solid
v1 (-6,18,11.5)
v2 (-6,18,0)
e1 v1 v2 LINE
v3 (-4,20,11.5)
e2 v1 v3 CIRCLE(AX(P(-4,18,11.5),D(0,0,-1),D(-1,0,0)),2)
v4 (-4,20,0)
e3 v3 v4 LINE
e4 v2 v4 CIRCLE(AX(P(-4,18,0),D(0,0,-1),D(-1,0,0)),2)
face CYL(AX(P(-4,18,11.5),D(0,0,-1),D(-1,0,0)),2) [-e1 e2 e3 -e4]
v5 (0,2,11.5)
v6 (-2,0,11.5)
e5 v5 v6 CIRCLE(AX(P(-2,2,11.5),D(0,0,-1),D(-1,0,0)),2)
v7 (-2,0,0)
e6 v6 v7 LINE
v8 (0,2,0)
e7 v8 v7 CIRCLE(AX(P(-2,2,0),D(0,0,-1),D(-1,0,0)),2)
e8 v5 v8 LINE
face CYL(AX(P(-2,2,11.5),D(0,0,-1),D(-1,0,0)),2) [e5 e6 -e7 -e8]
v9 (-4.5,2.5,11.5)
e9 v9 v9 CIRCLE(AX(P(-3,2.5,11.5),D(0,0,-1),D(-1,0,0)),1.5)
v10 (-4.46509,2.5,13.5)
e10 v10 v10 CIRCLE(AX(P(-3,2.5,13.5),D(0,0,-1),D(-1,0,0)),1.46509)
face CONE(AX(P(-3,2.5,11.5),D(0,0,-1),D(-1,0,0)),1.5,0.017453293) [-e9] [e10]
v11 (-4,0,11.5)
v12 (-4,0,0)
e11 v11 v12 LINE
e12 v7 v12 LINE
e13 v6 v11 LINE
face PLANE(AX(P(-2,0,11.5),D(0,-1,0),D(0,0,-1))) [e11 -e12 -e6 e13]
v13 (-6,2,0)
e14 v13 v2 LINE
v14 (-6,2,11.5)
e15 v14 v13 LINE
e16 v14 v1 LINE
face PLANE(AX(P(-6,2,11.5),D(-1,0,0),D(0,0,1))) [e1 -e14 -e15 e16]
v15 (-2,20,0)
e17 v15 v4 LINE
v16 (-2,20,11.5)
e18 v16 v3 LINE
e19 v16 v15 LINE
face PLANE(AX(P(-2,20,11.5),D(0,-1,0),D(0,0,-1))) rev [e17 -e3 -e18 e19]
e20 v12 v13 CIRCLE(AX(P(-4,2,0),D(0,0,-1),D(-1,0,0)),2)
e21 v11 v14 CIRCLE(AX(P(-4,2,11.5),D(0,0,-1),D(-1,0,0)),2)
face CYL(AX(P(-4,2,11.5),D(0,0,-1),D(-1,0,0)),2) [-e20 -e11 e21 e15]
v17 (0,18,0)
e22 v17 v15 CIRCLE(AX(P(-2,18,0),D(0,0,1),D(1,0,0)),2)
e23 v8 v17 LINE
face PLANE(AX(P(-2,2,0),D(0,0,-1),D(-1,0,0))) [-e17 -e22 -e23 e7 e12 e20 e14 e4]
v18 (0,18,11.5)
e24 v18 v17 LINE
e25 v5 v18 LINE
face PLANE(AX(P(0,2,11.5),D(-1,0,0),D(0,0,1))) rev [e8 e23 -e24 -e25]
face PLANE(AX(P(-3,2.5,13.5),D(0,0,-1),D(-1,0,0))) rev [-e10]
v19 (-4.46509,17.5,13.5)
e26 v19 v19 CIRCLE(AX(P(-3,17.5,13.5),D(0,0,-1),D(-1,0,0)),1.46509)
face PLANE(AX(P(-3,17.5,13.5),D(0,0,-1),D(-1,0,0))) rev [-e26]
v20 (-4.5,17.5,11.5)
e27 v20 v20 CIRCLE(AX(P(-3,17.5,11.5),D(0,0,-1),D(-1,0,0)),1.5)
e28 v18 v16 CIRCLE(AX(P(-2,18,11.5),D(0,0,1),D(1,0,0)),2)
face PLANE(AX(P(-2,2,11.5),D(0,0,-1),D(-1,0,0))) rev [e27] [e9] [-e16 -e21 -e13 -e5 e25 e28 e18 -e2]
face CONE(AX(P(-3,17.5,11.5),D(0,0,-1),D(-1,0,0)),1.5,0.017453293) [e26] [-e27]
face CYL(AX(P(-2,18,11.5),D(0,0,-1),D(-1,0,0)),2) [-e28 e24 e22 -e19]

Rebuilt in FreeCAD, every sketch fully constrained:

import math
import FreeCAD as App
import Part
import Sketcher

V = App.Vector


def faces_at(feature, points):
    """Names of the faces that lie closest to the given points."""
    faces = feature.Shape.Faces
    near = lambda p: min(range(len(faces)), key=lambda i: faces[i].distToShape(Part.Vertex(*p))[0])
    return sorted({f"Face{near(p) + 1}" for p in points})

doc = App.newDocument("Part")
params = doc.addObject("Spreadsheet::Sheet", "Params")
for row, (alias, value) in enumerate([
    ("sketch1_radius", "2 mm"),
    ("sketch1_width", "2 mm"),
    ("sketch1_height", "16 mm"),
    ("pad1_length", "11.5 mm"),
    ("sketch2_diameter", "3 mm"),
    ("pad2_length", "2 mm"),
    ("draft_angle", "1 deg"),
    ("sketch3_diameter", "3 mm"),
    ("pad3_length", "2 mm"),
    ("draft2_angle", "1 deg"),
], start=1):
    params.set(f"A{row}", alias)
    params.set(f"B{row}", "=" + value)
    params.setAlias(f"B{row}", alias)

body = doc.addObject("PartDesign::Body", "Body")

# Sketch on XY plane
sketch1 = body.newObject("Sketcher::SketchObject", "Sketch")
sketch1.AttachmentSupport = (doc.getObject("XY_Plane"), [""])
sketch1.MapMode = "FlatFace"
sketch1.addGeometry([
    Part.LineSegment(V(0, 2, 0), V(0, 18, 0)),  # 0
    Part.ArcOfCircle(Part.Circle(V(-2, 18, 0), V(0, 0, 1), 2), math.radians(0), math.radians(90)),  # 1
    Part.LineSegment(V(-2, 20, 0), V(-4, 20, 0)),  # 2
    Part.ArcOfCircle(Part.Circle(V(-4, 18, 0), V(0, 0, 1), 2), math.radians(90), math.radians(180)),  # 3
    Part.LineSegment(V(-6, 18, 0), V(-6, 2, 0)),  # 4
    Part.ArcOfCircle(Part.Circle(V(-4, 2, 0), V(0, 0, 1), 2), math.radians(-180), math.radians(-90)),  # 5
    Part.LineSegment(V(-4, 0, 0), V(-2, 0, 0)),  # 6
    Part.ArcOfCircle(Part.Circle(V(-2, 2, 0), V(0, 0, 1), 2), math.radians(-90), math.radians(0)),  # 7
], False)
sketch1.addConstraint([
    Sketcher.Constraint("Tangent", 0, 2, 1, 1),
    Sketcher.Constraint("Tangent", 1, 2, 2, 1),
    Sketcher.Constraint("Tangent", 2, 2, 3, 1),
    Sketcher.Constraint("Tangent", 3, 2, 4, 1),
    Sketcher.Constraint("Tangent", 4, 2, 5, 1),
    Sketcher.Constraint("Tangent", 5, 2, 6, 1),
    Sketcher.Constraint("Tangent", 6, 2, 7, 1),
    Sketcher.Constraint("Tangent", 7, 2, 0, 1),
    Sketcher.Constraint("Vertical", 0),
    Sketcher.Constraint("Horizontal", 2),
    Sketcher.Constraint("Vertical", 4),
    Sketcher.Constraint("Horizontal", 6),
    Sketcher.Constraint("Equal", 1, 3),
    Sketcher.Constraint("Equal", 3, 5),
    Sketcher.Constraint("Equal", 5, 7),
    Sketcher.Constraint("PointOnObject", 0, 2, -2),
    Sketcher.Constraint("PointOnObject", 5, 2, -1),
    Sketcher.Constraint("Radius", 1, 2.0),
    Sketcher.Constraint("DistanceX", 2, 2, 2, 1, 2.0),
    Sketcher.Constraint("DistanceY", 0, 1, 0, 2, 16.0),
])
sketch1.setExpression("Constraints[17]", "Params.sketch1_radius")
sketch1.setExpression("Constraints[18]", "Params.sketch1_width")
sketch1.setExpression("Constraints[19]", "Params.sketch1_height")
pad1 = body.newObject("PartDesign::Pad", "Pad")
pad1.Profile = sketch1
pad1.setExpression("Length", "Params.pad1_length")
body2 = doc.addObject("PartDesign::Body", "Body001")

# Sketch on XY plane
sketch2 = body2.newObject("Sketcher::SketchObject", "Sketch001")
sketch2.AttachmentSupport = (doc.getObject("XY_Plane001"), [""])
sketch2.MapMode = "FlatFace"
sketch2.AttachmentOffset = App.Placement(V(0, 0, 11.5), App.Rotation())
sketch2.addGeometry(Part.Circle(V(-3, 2.5, 0), V(0, 0, 1), 1.5), False)
sketch2.addConstraint([
    Sketcher.Constraint("Diameter", 0, 3.0),
    Sketcher.Constraint("DistanceX", 0, 3, -1, 1, 3.0),
    Sketcher.Constraint("DistanceY", -1, 1, 0, 3, 2.5),
])
sketch2.setExpression("Constraints[0]", "Params.sketch2_diameter")
pad2 = body2.newObject("PartDesign::Pad", "Pad001")
pad2.Profile = sketch2
pad2.setExpression("Length", "Params.pad2_length")
doc.recompute()

datumplane = body2.newObject("PartDesign::Plane", "DatumPlane")
datumplane.AttachmentSupport = (doc.getObject("XY_Plane001"), [""])
datumplane.MapMode = "FlatFace"
datumplane.AttachmentOffset = App.Placement(V(0, 0, 11.5), App.Rotation())
draft = body2.newObject("PartDesign::Draft", "Draft")
draft.Base = (pad2, faces_at(pad2, [(-3, 1, 12.5)]))
draft.NeutralPlane = (datumplane, [""])
draft.setExpression("Angle", "Params.draft_angle")
draft.Reversed = False
doc.recompute()

boolean = body.newObject("PartDesign::Boolean", "Boolean")
boolean.Type = "Fuse"
boolean.addObjects([body2])
body3 = doc.addObject("PartDesign::Body", "Body002")

# Sketch on XY plane
sketch3 = body3.newObject("Sketcher::SketchObject", "Sketch002")
sketch3.AttachmentSupport = (doc.getObject("XY_Plane002"), [""])
sketch3.MapMode = "FlatFace"
sketch3.AttachmentOffset = App.Placement(V(0, 0, 11.5), App.Rotation())
sketch3.addGeometry(Part.Circle(V(-3, 17.5, 0), V(0, 0, 1), 1.5), False)
sketch3.addConstraint([
    Sketcher.Constraint("Diameter", 0, 3.0),
    Sketcher.Constraint("DistanceX", 0, 3, -1, 1, 3.0),
    Sketcher.Constraint("DistanceY", -1, 1, 0, 3, 17.5),
])
sketch3.setExpression("Constraints[0]", "Params.sketch3_diameter")
pad3 = body3.newObject("PartDesign::Pad", "Pad002")
pad3.Profile = sketch3
pad3.setExpression("Length", "Params.pad3_length")
doc.recompute()

datumplane2 = body3.newObject("PartDesign::Plane", "DatumPlane001")
datumplane2.AttachmentSupport = (doc.getObject("XY_Plane002"), [""])
datumplane2.MapMode = "FlatFace"
datumplane2.AttachmentOffset = App.Placement(V(0, 0, 11.5), App.Rotation())
draft2 = body3.newObject("PartDesign::Draft", "Draft001")
draft2.Base = (pad3, faces_at(pad3, [(-3, 16, 12.5)]))
draft2.NeutralPlane = (datumplane2, [""])
draft2.setExpression("Angle", "Params.draft2_angle")
draft2.Reversed = False
doc.recompute()

boolean2 = body.newObject("PartDesign::Boolean", "Boolean001")
boolean2.Type = "Fuse"
boolean2.addObjects([body3])

doc.recompute()
